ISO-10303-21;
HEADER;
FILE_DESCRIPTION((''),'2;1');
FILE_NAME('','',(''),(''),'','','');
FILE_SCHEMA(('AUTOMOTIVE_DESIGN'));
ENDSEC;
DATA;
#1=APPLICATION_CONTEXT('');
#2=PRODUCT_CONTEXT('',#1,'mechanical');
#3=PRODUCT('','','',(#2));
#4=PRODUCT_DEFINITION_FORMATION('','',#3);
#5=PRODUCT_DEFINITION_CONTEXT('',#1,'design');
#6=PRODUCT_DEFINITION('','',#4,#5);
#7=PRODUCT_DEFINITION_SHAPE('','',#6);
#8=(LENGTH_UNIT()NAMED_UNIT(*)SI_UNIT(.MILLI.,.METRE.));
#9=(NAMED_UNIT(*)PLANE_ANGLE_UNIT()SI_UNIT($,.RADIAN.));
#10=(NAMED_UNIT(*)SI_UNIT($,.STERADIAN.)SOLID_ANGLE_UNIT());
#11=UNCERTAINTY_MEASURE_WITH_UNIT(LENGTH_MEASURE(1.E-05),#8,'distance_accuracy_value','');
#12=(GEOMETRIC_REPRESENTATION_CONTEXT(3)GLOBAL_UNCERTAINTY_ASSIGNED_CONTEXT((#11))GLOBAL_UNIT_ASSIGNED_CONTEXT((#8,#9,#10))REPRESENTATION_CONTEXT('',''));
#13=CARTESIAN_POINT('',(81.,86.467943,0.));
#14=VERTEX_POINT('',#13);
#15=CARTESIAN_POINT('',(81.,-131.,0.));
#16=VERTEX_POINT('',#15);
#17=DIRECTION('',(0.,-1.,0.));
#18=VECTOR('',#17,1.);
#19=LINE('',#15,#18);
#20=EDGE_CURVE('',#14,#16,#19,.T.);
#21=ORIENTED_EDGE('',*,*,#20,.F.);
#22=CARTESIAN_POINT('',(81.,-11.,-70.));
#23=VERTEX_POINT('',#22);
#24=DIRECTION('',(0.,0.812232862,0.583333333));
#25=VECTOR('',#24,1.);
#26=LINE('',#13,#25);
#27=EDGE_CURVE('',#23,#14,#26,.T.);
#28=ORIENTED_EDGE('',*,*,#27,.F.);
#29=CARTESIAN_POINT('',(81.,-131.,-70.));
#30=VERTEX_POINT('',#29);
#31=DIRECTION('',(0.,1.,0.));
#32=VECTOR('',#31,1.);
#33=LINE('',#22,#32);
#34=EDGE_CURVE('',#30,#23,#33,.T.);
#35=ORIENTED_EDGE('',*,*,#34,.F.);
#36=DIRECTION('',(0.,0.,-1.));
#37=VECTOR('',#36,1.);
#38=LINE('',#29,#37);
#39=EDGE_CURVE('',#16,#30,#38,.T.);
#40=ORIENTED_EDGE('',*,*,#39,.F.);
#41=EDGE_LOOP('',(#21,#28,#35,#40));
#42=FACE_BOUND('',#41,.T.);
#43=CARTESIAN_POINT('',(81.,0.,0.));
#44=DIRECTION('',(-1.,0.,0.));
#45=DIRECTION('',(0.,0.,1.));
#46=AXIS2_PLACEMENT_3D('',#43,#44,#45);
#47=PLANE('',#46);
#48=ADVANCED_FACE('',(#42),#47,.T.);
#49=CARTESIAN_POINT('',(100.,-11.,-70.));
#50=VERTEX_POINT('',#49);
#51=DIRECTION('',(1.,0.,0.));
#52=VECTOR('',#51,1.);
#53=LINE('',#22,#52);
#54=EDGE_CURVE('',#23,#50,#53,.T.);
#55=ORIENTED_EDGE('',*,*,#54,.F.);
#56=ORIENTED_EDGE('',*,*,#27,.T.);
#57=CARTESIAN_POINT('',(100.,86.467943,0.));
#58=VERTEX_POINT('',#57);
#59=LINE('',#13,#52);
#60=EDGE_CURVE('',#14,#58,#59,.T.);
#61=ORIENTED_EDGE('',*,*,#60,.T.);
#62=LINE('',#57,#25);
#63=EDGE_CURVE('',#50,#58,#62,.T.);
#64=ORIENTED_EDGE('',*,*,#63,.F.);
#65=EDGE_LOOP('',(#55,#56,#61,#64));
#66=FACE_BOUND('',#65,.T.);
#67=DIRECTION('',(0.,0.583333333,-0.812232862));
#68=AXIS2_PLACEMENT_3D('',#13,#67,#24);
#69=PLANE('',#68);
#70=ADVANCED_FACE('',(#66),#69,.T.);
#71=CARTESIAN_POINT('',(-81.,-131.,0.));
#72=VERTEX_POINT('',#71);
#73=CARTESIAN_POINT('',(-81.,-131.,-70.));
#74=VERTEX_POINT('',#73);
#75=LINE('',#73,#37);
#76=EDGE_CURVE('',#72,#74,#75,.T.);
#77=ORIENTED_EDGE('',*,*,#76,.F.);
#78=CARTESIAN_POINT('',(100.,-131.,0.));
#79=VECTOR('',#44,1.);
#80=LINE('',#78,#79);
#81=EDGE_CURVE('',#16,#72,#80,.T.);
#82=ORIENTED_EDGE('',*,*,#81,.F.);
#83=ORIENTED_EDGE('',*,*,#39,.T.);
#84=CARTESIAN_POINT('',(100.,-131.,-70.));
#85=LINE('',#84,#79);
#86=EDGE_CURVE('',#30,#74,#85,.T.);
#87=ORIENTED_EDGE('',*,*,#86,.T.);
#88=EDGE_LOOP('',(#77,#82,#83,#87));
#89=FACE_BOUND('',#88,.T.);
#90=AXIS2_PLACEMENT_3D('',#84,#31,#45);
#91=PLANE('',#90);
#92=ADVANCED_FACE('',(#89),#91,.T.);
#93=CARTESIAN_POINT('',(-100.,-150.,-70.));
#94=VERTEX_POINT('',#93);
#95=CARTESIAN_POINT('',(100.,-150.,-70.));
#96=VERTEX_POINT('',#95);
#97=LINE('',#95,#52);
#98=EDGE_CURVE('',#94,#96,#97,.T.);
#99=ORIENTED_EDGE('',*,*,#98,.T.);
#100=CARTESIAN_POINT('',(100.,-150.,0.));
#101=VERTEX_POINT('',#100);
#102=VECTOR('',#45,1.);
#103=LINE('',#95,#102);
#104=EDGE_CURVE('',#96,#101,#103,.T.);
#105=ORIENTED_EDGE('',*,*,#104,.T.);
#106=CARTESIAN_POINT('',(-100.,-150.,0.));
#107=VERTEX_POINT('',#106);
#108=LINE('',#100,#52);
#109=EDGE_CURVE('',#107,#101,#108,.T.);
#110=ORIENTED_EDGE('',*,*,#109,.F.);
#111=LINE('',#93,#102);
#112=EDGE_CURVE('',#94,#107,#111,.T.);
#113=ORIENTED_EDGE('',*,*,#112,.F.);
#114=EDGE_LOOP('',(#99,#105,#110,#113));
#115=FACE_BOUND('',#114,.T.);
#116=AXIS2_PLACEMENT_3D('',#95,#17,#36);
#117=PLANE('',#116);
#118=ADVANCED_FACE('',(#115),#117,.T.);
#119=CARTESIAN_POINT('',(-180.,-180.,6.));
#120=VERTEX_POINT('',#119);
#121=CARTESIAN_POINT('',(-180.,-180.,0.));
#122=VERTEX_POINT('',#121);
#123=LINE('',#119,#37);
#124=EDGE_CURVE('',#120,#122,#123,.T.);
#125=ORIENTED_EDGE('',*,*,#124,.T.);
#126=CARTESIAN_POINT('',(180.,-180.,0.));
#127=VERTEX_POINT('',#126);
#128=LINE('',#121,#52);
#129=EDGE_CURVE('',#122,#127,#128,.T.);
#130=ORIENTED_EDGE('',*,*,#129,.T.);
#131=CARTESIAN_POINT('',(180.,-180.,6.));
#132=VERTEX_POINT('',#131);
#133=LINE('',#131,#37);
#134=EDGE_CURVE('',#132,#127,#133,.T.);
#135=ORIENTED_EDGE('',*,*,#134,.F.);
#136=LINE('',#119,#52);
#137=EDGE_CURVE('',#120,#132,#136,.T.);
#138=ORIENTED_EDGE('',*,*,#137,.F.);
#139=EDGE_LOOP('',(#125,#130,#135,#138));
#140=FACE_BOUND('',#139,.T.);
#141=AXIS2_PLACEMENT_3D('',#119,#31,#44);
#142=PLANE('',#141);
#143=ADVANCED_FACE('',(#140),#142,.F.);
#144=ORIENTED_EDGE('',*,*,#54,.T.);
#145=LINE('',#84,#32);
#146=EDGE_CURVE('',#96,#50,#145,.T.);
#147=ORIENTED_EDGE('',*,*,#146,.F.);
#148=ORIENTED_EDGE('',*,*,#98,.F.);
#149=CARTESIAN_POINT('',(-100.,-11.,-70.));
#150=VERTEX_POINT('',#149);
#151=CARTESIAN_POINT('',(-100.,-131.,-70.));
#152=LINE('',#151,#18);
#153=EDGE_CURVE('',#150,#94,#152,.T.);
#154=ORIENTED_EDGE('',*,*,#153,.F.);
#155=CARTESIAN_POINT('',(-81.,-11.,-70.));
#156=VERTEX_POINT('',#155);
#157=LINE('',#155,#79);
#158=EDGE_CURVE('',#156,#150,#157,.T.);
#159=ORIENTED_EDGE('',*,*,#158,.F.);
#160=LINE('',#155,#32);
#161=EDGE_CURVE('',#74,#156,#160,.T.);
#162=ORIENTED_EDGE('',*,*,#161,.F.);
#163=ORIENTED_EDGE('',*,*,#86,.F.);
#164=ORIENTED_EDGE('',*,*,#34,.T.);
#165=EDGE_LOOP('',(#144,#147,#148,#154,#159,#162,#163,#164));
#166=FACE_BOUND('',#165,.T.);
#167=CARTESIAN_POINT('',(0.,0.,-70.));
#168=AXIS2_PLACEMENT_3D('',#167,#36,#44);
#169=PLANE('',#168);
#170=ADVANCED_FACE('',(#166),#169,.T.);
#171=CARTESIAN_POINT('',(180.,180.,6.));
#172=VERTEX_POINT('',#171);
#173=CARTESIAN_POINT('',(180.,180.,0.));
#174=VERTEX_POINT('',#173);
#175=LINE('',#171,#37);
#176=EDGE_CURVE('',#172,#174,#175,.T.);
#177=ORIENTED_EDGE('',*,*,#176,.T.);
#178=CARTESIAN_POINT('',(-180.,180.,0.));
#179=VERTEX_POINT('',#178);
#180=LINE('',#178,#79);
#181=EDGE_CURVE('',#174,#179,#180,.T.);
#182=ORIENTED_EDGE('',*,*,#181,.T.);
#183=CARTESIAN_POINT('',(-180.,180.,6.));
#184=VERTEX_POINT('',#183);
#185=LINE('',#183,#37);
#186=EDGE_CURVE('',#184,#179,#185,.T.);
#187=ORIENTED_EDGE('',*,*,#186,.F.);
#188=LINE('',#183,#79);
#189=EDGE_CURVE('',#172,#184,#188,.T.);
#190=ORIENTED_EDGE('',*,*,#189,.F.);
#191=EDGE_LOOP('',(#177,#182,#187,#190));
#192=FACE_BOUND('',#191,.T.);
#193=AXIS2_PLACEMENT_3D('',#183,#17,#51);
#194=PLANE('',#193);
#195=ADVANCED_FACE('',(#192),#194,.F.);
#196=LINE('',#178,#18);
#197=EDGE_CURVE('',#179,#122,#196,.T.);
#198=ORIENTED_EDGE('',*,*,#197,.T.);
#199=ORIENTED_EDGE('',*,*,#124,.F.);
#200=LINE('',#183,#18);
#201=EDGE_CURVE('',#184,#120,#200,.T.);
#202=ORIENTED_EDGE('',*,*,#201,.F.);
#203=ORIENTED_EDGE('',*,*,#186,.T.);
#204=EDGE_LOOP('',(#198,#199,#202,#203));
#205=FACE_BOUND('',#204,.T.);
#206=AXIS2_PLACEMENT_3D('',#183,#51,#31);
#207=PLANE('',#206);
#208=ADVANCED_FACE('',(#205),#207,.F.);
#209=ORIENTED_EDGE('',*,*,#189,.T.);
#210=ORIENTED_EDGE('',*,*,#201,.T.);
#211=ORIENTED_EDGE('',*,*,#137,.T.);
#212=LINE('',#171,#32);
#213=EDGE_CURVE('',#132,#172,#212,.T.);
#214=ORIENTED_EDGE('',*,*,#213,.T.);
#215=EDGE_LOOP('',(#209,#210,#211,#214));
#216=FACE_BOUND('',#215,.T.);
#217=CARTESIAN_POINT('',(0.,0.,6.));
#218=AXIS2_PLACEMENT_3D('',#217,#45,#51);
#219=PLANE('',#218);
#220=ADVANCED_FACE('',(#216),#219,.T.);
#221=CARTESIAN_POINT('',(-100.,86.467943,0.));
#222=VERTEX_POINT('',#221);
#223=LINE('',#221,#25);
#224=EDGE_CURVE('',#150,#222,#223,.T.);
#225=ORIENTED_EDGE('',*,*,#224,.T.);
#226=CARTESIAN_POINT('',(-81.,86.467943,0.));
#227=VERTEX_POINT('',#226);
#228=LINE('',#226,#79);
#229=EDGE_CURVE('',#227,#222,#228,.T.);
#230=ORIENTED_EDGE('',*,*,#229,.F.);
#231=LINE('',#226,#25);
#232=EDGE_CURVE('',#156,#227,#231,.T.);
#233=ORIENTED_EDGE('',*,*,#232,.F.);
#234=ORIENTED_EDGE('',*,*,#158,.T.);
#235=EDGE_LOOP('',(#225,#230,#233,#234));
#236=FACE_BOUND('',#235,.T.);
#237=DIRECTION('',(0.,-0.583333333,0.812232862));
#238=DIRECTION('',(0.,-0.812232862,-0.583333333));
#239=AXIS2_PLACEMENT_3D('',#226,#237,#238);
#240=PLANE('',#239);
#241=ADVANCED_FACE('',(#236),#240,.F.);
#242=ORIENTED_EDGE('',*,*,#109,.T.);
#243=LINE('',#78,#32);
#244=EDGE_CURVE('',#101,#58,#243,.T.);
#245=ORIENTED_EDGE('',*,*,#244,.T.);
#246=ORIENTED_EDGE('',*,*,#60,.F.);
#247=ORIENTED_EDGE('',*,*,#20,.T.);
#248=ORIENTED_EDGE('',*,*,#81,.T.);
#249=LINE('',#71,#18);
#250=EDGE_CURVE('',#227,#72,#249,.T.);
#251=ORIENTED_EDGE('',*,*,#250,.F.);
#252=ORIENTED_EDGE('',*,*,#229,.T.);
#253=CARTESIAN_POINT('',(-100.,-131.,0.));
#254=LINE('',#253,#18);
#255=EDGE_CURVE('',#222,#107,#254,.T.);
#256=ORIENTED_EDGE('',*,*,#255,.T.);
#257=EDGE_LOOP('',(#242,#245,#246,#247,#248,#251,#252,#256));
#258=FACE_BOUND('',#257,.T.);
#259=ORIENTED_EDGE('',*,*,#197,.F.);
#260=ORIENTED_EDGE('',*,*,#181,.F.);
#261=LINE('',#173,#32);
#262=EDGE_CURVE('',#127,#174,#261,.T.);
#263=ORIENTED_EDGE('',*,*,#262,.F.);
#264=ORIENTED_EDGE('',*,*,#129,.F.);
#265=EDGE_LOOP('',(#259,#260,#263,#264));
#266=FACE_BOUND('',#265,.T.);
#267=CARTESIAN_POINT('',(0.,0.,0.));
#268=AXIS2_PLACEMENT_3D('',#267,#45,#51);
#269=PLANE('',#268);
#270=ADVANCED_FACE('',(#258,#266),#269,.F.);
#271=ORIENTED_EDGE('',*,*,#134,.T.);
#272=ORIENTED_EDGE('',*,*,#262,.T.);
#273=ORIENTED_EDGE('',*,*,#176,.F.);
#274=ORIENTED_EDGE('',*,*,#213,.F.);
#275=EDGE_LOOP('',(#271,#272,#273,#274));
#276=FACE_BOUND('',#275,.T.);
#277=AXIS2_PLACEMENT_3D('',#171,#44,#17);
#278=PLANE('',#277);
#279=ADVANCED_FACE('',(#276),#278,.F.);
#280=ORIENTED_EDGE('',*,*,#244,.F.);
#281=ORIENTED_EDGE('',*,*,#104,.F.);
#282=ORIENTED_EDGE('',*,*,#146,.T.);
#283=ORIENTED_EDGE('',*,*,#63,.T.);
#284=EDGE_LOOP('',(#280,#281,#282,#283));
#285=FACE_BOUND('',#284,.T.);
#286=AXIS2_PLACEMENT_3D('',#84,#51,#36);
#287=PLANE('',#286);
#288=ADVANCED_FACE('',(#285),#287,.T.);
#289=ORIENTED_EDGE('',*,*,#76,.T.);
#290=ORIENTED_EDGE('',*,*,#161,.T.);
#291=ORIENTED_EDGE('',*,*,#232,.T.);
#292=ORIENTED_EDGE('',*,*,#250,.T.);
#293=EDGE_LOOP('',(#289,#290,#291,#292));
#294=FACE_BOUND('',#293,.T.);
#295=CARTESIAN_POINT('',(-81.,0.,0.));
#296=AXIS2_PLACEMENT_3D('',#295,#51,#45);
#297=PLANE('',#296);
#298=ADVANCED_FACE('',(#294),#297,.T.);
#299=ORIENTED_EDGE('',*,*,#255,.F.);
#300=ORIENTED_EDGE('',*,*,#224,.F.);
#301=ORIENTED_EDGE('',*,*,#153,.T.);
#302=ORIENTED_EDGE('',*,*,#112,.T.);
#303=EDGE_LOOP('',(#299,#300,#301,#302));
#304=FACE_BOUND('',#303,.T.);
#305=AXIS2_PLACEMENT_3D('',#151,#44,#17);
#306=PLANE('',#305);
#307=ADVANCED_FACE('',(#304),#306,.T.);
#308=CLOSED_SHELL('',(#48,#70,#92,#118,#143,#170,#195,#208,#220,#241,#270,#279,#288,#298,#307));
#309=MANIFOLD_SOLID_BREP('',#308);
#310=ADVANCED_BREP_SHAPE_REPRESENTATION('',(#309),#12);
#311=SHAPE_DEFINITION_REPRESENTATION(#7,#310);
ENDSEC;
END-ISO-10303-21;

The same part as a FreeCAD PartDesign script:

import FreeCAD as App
import Part
import Sketcher

doc = App.newDocument("Part")
body = doc.addObject("PartDesign::Body", "Body")

sketch1 = doc.addObject("Sketcher::SketchObject", "Sketch")
body.addObject(sketch1)
sketch1.AttachmentSupport = (doc.XY_Plane, [""])
sketch1.MapMode = "FlatFace"
sketch1.addGeometry(Part.LineSegment(App.Vector(-180, 180, 0), App.Vector(-180, -180, 0)), False)
sketch1.addGeometry(Part.LineSegment(App.Vector(-180, -180, 0), App.Vector(180, -180, 0)), False)
sketch1.addGeometry(Part.LineSegment(App.Vector(180, -180, 0), App.Vector(180, 180, 0)), False)
sketch1.addGeometry(Part.LineSegment(App.Vector(180, 180, 0), App.Vector(-180, 180, 0)), False)
sketch1.addConstraint(Sketcher.Constraint("Coincident", 0, 2, 1, 1))
sketch1.addConstraint(Sketcher.Constraint("Coincident", 1, 2, 2, 1))
sketch1.addConstraint(Sketcher.Constraint("Coincident", 2, 2, 3, 1))
sketch1.addConstraint(Sketcher.Constraint("Coincident", 3, 2, 0, 1))
sketch1.addConstraint(Sketcher.Constraint("Vertical", 0))
sketch1.addConstraint(Sketcher.Constraint("Horizontal", 1))
sketch1.addConstraint(Sketcher.Constraint("Vertical", 2))
sketch1.addConstraint(Sketcher.Constraint("Horizontal", 3))
sketch1.addConstraint(Sketcher.Constraint("Symmetric", 0, 2, 2, 2, -1, 1))
sketch1.addConstraint(Sketcher.Constraint("Equal", 3, 0))
sketch1.addConstraint(Sketcher.Constraint("DistanceX", 1, 1, 1, 2, 360.0))
pad1 = doc.addObject("PartDesign::Pad", "Pad")
body.addObject(pad1)
pad1.Profile = sketch1
pad1.Length = 6

sketch2 = doc.addObject("Sketcher::SketchObject", "Sketch001")
body.addObject(sketch2)
sketch2.AttachmentSupport = (doc.XY_Plane, [""])
sketch2.MapMode = "FlatFace"
sketch2.addGeometry(Part.LineSegment(App.Vector(-100, -131, 0), App.Vector(-100, -150, 0)), False)
sketch2.addGeometry(Part.LineSegment(App.Vector(-100, -150, 0), App.Vector(100, -150, 0)), False)
sketch2.addGeometry(Part.LineSegment(App.Vector(100, -150, 0), App.Vector(100, -131, 0)), False)
sketch2.addGeometry(Part.LineSegment(App.Vector(100, -131, 0), App.Vector(-100, -131, 0)), False)
sketch2.addConstraint(Sketcher.Constraint("Coincident", 0, 2, 1, 1))
sketch2.addConstraint(Sketcher.Constraint("Coincident", 1, 2, 2, 1))
sketch2.addConstraint(Sketcher.Constraint("Coincident", 2, 2, 3, 1))
sketch2.addConstraint(Sketcher.Constraint("Coincident", 3, 2, 0, 1))
sketch2.addConstraint(Sketcher.Constraint("Vertical", 0))
sketch2.addConstraint(Sketcher.Constraint("Horizontal", 1))
sketch2.addConstraint(Sketcher.Constraint("Vertical", 2))
sketch2.addConstraint(Sketcher.Constraint("Horizontal", 3))
sketch2.addConstraint(Sketcher.Constraint("DistanceX", 1, 1, 1, 2, 200.0))
sketch2.addConstraint(Sketcher.Constraint("DistanceY", 0, 2, 0, 1, 19.0))
sketch2.addConstraint(Sketcher.Constraint("DistanceX", 0, 2, -1, 1, 100.0))
sketch2.addConstraint(Sketcher.Constraint("DistanceY", 0, 2, -1, 1, 150.0))
pad2 = doc.addObject("PartDesign::Pad", "Pad001")
body.addObject(pad2)
pad2.Profile = sketch2
pad2.Length = 70
pad2.Reversed = True

sketch3 = doc.addObject("Sketcher::SketchObject", "Sketch002")
body.addObject(sketch3)
sketch3.AttachmentSupport = (doc.YZ_Plane, [""])
sketch3.MapMode = "FlatFace"
sketch3.AttachmentOffset = App.Placement(App.Vector(0, 0, 100), App.Rotation())
sketch3.addGeometry(Part.LineSegment(App.Vector(86, 0, 0), App.Vector(-131, 0, 0)), False)
sketch3.addGeometry(Part.LineSegment(App.Vector(-131, 0, 0), App.Vector(-131, -70, 0)), False)
sketch3.addGeometry(Part.LineSegment(App.Vector(-131, -70, 0), App.Vector(-11, -70, 0)), False)
sketch3.addGeometry(Part.LineSegment(App.Vector(-11, -70, 0), App.Vector(86, 0, 0)), False)
sketch3.addConstraint(Sketcher.Constraint("Coincident", 0, 2, 1, 1))
sketch3.addConstraint(Sketcher.Constraint("Coincident", 1, 2, 2, 1))
sketch3.addConstraint(Sketcher.Constraint("Coincident", 2, 2, 3, 1))
sketch3.addConstraint(Sketcher.Constraint("Coincident", 3, 2, 0, 1))
sketch3.addConstraint(Sketcher.Constraint("Horizontal", 0))
sketch3.addConstraint(Sketcher.Constraint("Vertical", 1))
sketch3.addConstraint(Sketcher.Constraint("Horizontal", 2))
sketch3.addConstraint(Sketcher.Constraint("PointOnObject", 0, 2, -1))
sketch3.addConstraint(Sketcher.Constraint("DistanceX", 2, 1, 2, 2, 120.0))
sketch3.addConstraint(Sketcher.Constraint("DistanceY", 1, 2, 1, 1, 70.0))
sketch3.addConstraint(Sketcher.Constraint("Distance", 3, 120.0))
sketch3.addConstraint(Sketcher.Constraint("DistanceX", 0, 2, -1, 1, 131.0))
pad3 = doc.addObject("PartDesign::Pad", "Pad002")
body.addObject(pad3)
pad3.Profile = sketch3
pad3.Length = 19
pad3.Reversed = True
doc.recompute()

mirrored = doc.addObject("PartDesign::Mirrored", "Mirrored")
body.addObject(mirrored)
mirrored.Originals = [pad3]
mirrored.MirrorPlane = (doc.YZ_Plane, [""])
body.Tip = mirrored

doc.recompute()
